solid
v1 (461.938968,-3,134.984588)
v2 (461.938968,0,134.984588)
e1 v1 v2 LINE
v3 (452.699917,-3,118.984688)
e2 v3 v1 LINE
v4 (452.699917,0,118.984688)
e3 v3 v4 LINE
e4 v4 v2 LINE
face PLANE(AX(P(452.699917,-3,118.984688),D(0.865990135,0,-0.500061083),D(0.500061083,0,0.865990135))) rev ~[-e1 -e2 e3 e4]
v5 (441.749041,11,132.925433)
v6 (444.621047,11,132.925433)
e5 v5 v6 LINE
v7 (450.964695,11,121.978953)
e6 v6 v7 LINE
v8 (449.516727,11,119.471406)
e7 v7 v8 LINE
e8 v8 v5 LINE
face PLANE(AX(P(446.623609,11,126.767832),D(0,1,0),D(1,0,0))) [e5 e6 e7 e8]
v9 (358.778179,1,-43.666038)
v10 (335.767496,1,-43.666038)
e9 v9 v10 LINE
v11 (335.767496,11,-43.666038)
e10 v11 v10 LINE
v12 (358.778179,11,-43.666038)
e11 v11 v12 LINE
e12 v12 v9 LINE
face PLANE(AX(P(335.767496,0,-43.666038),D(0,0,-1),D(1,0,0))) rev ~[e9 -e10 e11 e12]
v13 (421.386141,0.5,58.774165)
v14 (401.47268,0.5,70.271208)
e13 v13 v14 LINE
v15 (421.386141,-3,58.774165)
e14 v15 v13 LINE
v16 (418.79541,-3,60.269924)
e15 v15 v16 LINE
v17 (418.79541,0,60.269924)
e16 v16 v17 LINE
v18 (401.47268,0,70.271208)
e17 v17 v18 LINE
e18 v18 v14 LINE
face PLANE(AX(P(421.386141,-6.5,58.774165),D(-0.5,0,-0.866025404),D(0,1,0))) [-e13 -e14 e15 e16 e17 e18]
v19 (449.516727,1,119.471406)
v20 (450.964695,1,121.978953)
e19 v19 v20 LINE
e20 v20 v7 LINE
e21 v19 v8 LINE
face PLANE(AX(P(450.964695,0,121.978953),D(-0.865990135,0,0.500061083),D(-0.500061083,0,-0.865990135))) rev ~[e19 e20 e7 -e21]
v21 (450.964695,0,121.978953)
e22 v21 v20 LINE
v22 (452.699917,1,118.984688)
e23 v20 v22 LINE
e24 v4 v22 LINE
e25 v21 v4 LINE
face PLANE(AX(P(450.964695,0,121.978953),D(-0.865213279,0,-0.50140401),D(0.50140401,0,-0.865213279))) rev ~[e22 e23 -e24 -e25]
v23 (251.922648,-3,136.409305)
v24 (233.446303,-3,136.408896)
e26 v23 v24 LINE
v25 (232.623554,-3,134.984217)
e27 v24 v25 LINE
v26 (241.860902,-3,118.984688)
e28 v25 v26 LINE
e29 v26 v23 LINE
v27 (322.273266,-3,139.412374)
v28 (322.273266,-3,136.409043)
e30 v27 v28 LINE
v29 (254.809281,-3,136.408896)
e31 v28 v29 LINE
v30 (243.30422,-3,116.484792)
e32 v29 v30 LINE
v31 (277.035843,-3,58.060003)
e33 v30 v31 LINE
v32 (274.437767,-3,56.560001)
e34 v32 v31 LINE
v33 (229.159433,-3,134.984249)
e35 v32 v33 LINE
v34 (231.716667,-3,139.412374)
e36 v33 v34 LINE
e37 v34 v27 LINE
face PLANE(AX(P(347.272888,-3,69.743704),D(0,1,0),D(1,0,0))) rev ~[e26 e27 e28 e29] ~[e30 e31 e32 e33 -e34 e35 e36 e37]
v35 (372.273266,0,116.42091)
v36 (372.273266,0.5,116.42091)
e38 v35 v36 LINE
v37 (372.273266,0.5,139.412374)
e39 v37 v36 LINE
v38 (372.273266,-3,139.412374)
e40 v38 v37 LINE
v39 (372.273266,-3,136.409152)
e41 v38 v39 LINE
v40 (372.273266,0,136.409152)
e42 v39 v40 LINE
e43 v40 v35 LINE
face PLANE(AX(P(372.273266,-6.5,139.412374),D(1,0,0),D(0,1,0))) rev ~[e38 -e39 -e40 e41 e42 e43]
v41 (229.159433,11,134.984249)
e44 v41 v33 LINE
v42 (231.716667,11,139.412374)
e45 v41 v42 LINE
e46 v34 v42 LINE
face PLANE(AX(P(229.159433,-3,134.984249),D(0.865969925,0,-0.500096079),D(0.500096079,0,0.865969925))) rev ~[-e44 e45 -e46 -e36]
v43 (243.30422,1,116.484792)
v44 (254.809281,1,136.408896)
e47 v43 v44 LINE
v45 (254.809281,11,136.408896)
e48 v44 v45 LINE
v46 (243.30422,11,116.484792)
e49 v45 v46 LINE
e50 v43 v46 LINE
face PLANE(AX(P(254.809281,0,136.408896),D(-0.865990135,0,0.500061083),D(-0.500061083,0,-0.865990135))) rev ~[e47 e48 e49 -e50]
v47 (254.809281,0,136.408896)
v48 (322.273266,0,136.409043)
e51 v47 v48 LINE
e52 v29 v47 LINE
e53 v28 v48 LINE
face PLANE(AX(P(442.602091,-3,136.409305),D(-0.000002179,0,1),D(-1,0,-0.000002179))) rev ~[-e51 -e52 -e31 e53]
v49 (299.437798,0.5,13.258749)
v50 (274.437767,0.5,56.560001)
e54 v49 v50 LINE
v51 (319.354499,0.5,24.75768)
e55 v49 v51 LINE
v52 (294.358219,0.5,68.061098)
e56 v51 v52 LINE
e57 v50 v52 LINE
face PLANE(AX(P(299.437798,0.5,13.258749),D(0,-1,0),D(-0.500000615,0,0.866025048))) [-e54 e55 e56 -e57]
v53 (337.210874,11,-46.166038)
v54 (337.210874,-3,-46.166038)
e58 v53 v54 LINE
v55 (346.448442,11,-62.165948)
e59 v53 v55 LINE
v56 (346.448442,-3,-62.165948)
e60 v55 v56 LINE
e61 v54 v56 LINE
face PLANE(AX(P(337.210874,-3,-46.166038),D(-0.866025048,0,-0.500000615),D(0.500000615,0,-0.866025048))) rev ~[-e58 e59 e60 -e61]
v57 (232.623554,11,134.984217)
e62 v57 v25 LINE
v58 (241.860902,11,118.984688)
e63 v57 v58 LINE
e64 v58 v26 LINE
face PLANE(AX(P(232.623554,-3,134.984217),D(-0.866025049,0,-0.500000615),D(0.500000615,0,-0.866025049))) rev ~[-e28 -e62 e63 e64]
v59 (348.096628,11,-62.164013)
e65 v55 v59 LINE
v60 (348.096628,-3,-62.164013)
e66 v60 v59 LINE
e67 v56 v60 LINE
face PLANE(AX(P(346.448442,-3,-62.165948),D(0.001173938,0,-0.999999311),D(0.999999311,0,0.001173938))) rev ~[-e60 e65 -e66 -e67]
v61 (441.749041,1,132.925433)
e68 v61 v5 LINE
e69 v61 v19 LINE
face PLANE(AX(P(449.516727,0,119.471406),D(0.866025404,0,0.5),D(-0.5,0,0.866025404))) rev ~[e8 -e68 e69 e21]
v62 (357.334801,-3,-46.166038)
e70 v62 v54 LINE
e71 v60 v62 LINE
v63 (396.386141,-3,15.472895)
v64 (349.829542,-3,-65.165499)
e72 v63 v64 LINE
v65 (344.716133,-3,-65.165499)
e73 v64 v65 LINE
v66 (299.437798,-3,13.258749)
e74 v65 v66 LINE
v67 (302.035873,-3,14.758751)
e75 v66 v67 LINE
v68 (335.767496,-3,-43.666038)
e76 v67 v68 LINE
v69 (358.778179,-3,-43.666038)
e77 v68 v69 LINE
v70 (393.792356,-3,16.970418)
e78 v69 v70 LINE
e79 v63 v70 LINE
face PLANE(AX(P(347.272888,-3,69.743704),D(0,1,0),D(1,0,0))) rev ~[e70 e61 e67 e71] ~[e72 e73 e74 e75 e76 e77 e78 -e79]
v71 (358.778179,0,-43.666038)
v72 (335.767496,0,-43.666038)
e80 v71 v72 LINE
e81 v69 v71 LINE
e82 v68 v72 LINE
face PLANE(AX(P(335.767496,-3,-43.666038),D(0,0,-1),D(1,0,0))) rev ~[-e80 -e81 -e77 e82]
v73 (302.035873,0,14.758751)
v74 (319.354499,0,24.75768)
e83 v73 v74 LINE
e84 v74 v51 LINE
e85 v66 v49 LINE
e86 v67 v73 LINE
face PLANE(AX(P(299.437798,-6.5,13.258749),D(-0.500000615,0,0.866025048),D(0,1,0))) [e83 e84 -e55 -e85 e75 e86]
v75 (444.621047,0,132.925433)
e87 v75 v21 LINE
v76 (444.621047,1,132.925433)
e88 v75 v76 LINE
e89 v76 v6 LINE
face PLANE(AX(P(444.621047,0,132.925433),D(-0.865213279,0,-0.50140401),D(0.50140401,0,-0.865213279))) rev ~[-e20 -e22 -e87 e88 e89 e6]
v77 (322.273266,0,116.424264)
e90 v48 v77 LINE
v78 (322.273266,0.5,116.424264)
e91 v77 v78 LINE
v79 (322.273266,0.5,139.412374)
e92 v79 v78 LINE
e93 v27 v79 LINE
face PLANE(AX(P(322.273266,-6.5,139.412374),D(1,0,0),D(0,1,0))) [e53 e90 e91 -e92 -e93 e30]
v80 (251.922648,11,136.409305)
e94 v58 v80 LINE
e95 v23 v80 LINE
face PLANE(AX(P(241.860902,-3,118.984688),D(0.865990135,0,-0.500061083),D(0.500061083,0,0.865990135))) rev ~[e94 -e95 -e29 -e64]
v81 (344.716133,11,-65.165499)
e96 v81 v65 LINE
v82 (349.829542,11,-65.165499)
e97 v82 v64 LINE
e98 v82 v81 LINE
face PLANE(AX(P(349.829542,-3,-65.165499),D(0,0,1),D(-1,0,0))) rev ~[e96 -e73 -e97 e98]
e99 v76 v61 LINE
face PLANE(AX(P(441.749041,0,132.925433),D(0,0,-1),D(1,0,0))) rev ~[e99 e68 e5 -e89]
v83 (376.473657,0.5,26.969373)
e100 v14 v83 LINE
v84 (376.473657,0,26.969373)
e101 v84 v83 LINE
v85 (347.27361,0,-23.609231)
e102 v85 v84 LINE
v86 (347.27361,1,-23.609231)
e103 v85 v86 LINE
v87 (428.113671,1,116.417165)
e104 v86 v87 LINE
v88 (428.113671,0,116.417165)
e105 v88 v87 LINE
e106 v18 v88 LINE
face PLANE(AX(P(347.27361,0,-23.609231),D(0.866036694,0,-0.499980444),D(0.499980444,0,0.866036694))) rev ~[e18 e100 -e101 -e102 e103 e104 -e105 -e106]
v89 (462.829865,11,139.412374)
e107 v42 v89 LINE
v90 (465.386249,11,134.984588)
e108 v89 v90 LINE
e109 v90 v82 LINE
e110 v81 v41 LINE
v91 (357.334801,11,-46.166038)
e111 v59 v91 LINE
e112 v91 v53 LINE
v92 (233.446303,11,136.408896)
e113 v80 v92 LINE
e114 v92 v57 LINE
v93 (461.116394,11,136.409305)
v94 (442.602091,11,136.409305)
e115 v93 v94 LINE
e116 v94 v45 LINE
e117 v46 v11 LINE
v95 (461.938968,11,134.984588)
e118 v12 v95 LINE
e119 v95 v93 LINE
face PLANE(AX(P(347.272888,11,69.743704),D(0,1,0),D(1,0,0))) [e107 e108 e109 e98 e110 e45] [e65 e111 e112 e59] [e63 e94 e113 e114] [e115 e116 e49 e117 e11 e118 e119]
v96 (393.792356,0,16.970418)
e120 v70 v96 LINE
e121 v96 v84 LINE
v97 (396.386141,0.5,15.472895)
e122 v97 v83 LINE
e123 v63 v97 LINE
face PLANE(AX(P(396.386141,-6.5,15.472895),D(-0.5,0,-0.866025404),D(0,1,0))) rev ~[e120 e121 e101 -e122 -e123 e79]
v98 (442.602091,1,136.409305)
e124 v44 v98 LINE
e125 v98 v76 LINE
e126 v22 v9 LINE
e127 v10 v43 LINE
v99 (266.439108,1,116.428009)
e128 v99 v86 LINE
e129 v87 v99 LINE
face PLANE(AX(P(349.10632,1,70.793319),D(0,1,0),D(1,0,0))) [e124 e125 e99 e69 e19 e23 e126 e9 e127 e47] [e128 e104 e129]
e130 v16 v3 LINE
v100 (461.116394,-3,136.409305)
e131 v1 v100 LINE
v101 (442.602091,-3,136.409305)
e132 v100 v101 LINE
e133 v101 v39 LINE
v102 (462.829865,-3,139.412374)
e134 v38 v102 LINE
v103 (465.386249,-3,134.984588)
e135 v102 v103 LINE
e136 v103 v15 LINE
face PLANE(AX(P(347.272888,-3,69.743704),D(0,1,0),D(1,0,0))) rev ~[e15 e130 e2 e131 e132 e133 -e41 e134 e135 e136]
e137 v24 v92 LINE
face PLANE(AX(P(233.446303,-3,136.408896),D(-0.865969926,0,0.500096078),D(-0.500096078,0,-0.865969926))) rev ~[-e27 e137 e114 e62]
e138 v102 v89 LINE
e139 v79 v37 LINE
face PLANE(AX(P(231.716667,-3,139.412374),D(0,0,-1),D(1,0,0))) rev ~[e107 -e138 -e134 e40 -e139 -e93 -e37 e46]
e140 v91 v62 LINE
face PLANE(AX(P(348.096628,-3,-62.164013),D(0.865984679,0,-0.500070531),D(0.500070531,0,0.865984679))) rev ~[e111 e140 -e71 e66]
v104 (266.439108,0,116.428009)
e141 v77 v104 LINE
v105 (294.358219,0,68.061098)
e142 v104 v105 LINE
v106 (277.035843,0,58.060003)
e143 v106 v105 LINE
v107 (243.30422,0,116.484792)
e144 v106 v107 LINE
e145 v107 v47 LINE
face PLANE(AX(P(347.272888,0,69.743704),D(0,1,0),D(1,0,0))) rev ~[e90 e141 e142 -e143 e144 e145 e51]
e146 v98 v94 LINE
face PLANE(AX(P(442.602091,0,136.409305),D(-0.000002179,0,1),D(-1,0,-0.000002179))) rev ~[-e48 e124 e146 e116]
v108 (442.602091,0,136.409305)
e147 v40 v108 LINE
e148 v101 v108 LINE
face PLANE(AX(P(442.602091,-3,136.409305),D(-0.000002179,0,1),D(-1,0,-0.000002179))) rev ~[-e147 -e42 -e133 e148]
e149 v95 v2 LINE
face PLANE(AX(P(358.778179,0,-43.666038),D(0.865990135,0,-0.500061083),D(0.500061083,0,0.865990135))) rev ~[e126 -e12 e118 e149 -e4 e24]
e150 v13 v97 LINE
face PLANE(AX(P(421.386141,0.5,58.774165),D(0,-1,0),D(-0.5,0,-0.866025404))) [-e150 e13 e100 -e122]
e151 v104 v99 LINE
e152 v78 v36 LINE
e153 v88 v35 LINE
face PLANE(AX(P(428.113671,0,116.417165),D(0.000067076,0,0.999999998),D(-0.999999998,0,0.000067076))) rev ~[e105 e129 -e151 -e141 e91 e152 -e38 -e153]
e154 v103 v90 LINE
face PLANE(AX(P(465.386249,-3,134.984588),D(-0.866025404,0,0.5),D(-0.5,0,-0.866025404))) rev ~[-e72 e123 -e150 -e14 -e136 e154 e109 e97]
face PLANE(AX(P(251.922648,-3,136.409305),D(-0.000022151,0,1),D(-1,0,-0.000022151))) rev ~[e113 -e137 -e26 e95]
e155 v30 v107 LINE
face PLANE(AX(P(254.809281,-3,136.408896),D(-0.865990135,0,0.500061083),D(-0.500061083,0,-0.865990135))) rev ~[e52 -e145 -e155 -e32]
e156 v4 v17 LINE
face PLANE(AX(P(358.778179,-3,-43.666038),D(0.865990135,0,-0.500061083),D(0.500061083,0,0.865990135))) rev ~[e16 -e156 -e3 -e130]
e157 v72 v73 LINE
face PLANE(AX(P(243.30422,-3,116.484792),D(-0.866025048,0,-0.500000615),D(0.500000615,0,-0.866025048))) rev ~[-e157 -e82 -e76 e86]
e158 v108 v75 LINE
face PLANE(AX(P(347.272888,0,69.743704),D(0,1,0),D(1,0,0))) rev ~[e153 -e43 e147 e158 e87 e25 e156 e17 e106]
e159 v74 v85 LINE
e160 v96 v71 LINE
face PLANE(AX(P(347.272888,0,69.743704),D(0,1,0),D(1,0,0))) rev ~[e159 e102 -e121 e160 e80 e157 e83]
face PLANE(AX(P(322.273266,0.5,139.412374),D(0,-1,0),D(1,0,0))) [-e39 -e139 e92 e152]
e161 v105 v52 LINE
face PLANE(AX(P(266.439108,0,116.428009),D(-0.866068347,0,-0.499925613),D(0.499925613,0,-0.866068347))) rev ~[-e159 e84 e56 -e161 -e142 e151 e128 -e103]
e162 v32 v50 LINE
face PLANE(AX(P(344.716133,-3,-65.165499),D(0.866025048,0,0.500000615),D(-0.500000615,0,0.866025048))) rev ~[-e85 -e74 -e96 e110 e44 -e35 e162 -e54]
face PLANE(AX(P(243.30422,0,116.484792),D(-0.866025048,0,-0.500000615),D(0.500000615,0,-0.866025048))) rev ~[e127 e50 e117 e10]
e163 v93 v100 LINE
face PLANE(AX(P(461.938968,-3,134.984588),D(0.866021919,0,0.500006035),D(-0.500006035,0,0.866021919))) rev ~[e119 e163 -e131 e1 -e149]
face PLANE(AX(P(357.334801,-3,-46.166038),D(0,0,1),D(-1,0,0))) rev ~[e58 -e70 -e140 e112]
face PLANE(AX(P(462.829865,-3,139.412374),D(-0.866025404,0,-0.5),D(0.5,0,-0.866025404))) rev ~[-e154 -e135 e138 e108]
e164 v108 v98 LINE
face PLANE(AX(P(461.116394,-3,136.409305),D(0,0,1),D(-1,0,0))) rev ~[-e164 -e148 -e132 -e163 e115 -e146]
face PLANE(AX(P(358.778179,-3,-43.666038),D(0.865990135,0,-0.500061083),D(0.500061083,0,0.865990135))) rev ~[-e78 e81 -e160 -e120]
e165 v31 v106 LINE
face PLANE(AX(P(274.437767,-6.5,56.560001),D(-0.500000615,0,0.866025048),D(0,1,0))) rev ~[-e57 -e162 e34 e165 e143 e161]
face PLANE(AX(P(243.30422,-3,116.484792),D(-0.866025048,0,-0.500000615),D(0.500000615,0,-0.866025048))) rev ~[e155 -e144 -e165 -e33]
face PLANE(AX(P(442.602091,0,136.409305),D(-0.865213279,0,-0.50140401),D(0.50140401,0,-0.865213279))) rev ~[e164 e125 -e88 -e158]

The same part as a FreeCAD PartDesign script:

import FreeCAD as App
import Part
import Sketcher

doc = App.newDocument("Part")
body = doc.addObject("PartDesign::Body", "Body")

# Sketch on XZ plane
sketch1 = doc.addObject("Sketcher::SketchObject", "Sketch")
body.addObject(sketch1)
sketch1.AttachmentSupport = (doc.XZ_Plane, [""])
sketch1.MapMode = "FlatFace"
sketch1.addGeometry(Part.LineSegment(App.Vector(243.30422, 116.484792, 0), App.Vector(254.809281, 136.408896, 0)), False)
sketch1.addGeometry(Part.LineSegment(App.Vector(254.809281, 136.408896, 0), App.Vector(442.602091, 136.409305, 0)), False)
sketch1.addGeometry(Part.LineSegment(App.Vector(442.602091, 136.409305, 0), App.Vector(444.621047, 132.925433, 0)), False)
sketch1.addGeometry(Part.LineSegment(App.Vector(444.621047, 132.925433, 0), App.Vector(441.749041, 132.925433, 0)), False)
sketch1.addGeometry(Part.LineSegment(App.Vector(441.749041, 132.925433, 0), App.Vector(449.516727, 119.471406, 0)), False)
sketch1.addGeometry(Part.LineSegment(App.Vector(449.516727, 119.471406, 0), App.Vector(450.964695, 121.978953, 0)), False)
sketch1.addGeometry(Part.LineSegment(App.Vector(450.964695, 121.978953, 0), App.Vector(452.699917, 118.984688, 0)), False)
sketch1.addGeometry(Part.LineSegment(App.Vector(452.699917, 118.984688, 0), App.Vector(358.778179, -43.666038, 0)), False)
sketch1.addGeometry(Part.LineSegment(App.Vector(358.778179, -43.666038, 0), App.Vector(335.767496, -43.666038, 0)), False)
sketch1.addGeometry(Part.LineSegment(App.Vector(335.767496, -43.666038, 0), App.Vector(243.30422, 116.484792, 0)), False)
sketch1.addGeometry(Part.LineSegment(App.Vector(347.27361, -23.609231, 0), App.Vector(428.113671, 116.417165, 0)), False)
sketch1.addGeometry(Part.LineSegment(App.Vector(428.113671, 116.417165, 0), App.Vector(266.439108, 116.428009, 0)), False)
sketch1.addGeometry(Part.LineSegment(App.Vector(266.439108, 116.428009, 0), App.Vector(347.27361, -23.609231, 0)), False)
sketch1.addConstraint(Sketcher.Constraint("Coincident", 0, 2, 1, 1))
sketch1.addConstraint(Sketcher.Constraint("Coincident", 1, 2, 2, 1))
sketch1.addConstraint(Sketcher.Constraint("Coincident", 2, 2, 3, 1))
sketch1.addConstraint(Sketcher.Constraint("Coincident", 3, 2, 4, 1))
sketch1.addConstraint(Sketcher.Constraint("Coincident", 4, 2, 5, 1))
sketch1.addConstraint(Sketcher.Constraint("Coincident", 5, 2, 6, 1))
sketch1.addConstraint(Sketcher.Constraint("Coincident", 6, 2, 7, 1))
sketch1.addConstraint(Sketcher.Constraint("Coincident", 7, 2, 8, 1))
sketch1.addConstraint(Sketcher.Constraint("Coincident", 8, 2, 9, 1))
sketch1.addConstraint(Sketcher.Constraint("Coincident", 9, 2, 0, 1))
sketch1.addConstraint(Sketcher.Constraint("Coincident", 10, 2, 11, 1))
sketch1.addConstraint(Sketcher.Constraint("Coincident", 11, 2, 12, 1))
sketch1.addConstraint(Sketcher.Constraint("Coincident", 12, 2, 10, 1))
sketch1.addConstraint(Sketcher.Constraint("Horizontal", 3))
sketch1.addConstraint(Sketcher.Constraint("Horizontal", 8))
sketch1.addConstraint(Sketcher.Constraint("DistanceY", 4, 2, 1, 2, 16.937899))
sketch1.addConstraint(Sketcher.Constraint("DistanceX", 8, 2, 5, 2, 115.197199))
sketch1.addConstraint(Sketcher.Constraint("DistanceX", 11, 2, 12, 2, 80.834501))
sketch1.addConstraint(Sketcher.Constraint("Distance", 0, 23.007311))
sketch1.addConstraint(Sketcher.Constraint("Distance", 1, 187.79281))
sketch1.addConstraint(Sketcher.Constraint("Distance", 4, 15.535372))
sketch1.addConstraint(Sketcher.Constraint("Distance", 7, 187.82053))
sketch1.addConstraint(Sketcher.Constraint("Distance", 12, 161.693059))
sketch1.addConstraint(Sketcher.Constraint("DistanceX", 3, 2, 3, 1, 2.872006))
sketch1.addConstraint(Sketcher.Constraint("DistanceX", 8, 2, 8, 1, 23.010683))
sketch1.addConstraint(Sketcher.Constraint("DistanceX", -1, 1, 0, 2, 254.809281))
sketch1.addConstraint(Sketcher.Constraint("DistanceX", -1, 1, 3, 2, 441.749041))
sketch1.addConstraint(Sketcher.Constraint("DistanceY", -1, 1, 6, 2, 118.984688))
sketch1.addConstraint(Sketcher.Constraint("DistanceX", -1, 1, 7, 2, 358.778179))
sketch1.addConstraint(Sketcher.Constraint("DistanceY", 7, 2, -1, 1, 43.666038))
sketch1.addConstraint(Sketcher.Constraint("DistanceX", -1, 1, 9, 2, 243.30422))
sketch1.addConstraint(Sketcher.Constraint("DistanceY", -1, 1, 9, 2, 116.484792))
sketch1.addConstraint(Sketcher.Constraint("DistanceX", -1, 1, 10, 2, 428.113671))
sketch1.addConstraint(Sketcher.Constraint("DistanceX", -1, 1, 11, 2, 266.439108))
sketch1.addConstraint(Sketcher.Constraint("DistanceY", -1, 1, 11, 2, 116.428009))
sketch1.addConstraint(Sketcher.Constraint("DistanceY", 0, 2, 1, 2, 0.000409))
sketch1.addConstraint(Sketcher.Constraint("DistanceX", 2, 2, 4, 2, 4.89568))
sketch1.addConstraint(Sketcher.Constraint("DistanceY", 5, 2, 2, 2, 10.94648))
sketch1.addConstraint(Sketcher.Constraint("DistanceY", 10, 2, 3, 2, 16.508269))
pad1 = doc.addObject("PartDesign::Pad", "Pad")
body.addObject(pad1)
pad1.Profile = sketch1
pad1.Length = 1
pad1.Reversed = True

# Sketch on XZ plane
sketch2 = doc.addObject("Sketcher::SketchObject", "Sketch001")
body.addObject(sketch2)
sketch2.AttachmentSupport = (doc.XZ_Plane, [""])
sketch2.MapMode = "FlatFace"
sketch2.addGeometry(Part.LineSegment(App.Vector(229.159433, 134.984249, 0), App.Vector(231.716667, 139.412374, 0)), False)
sketch2.addGeometry(Part.LineSegment(App.Vector(231.716667, 139.412374, 0), App.Vector(462.829865, 139.412374, 0)), False)
sketch2.addGeometry(Part.LineSegment(App.Vector(462.829865, 139.412374, 0), App.Vector(465.386249, 134.984588, 0)), False)
sketch2.addGeometry(Part.LineSegment(App.Vector(465.386249, 134.984588, 0), App.Vector(349.829542, -65.165499, 0)), False)
sketch2.addGeometry(Part.LineSegment(App.Vector(349.829542, -65.165499, 0), App.Vector(344.716133, -65.165499, 0)), False)
sketch2.addGeometry(Part.LineSegment(App.Vector(344.716133, -65.165499, 0), App.Vector(229.159433, 134.984249, 0)), False)
sketch2.addGeometry(Part.LineSegment(App.Vector(241.860902, 118.984688, 0), App.Vector(251.922648, 136.409305, 0)), False)
sketch2.addGeometry(Part.LineSegment(App.Vector(251.922648, 136.409305, 0), App.Vector(233.446303, 136.408896, 0)), False)
sketch2.addGeometry(Part.LineSegment(App.Vector(233.446303, 136.408896, 0), App.Vector(232.623554, 134.984217, 0)), False)
sketch2.addGeometry(Part.LineSegment(App.Vector(232.623554, 134.984217, 0), App.Vector(241.860902, 118.984688, 0)), False)
sketch2.addGeometry(Part.LineSegment(App.Vector(461.116394, 136.409305, 0), App.Vector(442.602091, 136.409305, 0)), False)
sketch2.addGeometry(Part.LineSegment(App.Vector(442.602091, 136.409305, 0), App.Vector(254.809281, 136.408896, 0)), False)
sketch2.addGeometry(Part.LineSegment(App.Vector(254.809281, 136.408896, 0), App.Vector(243.30422, 116.484792, 0)), False)
sketch2.addGeometry(Part.LineSegment(App.Vector(243.30422, 116.484792, 0), App.Vector(335.767496, -43.666038, 0)), False)
sketch2.addGeometry(Part.LineSegment(App.Vector(335.767496, -43.666038, 0), App.Vector(358.778179, -43.666038, 0)), False)
sketch2.addGeometry(Part.LineSegment(App.Vector(358.778179, -43.666038, 0), App.Vector(461.938968, 134.984588, 0)), False)
sketch2.addGeometry(Part.LineSegment(App.Vector(461.938968, 134.984588, 0), App.Vector(461.116394, 136.409305, 0)), False)
sketch2.addGeometry(Part.LineSegment(App.Vector(346.448442, -62.165948, 0), App.Vector(348.096628, -62.164013, 0)), False)
sketch2.addGeometry(Part.LineSegment(App.Vector(348.096628, -62.164013, 0), App.Vector(357.334801, -46.166038, 0)), False)
sketch2.addGeometry(Part.LineSegment(App.Vector(357.334801, -46.166038, 0), App.Vector(337.210874, -46.166038, 0)), False)
sketch2.addGeometry(Part.LineSegment(App.Vector(337.210874, -46.166038, 0), App.Vector(346.448442, -62.165948, 0)), False)
sketch2.addGeometry(Part.LineSegment(App.Vector(441.749041, 132.925433, 0), App.Vector(444.621047, 132.925433, 0)), False)
sketch2.addGeometry(Part.LineSegment(App.Vector(444.621047, 132.925433, 0), App.Vector(450.964695, 121.978953, 0)), False)
sketch2.addGeometry(Part.LineSegment(App.Vector(450.964695, 121.978953, 0), App.Vector(449.516727, 119.471406, 0)), False)
sketch2.addGeometry(Part.LineSegment(App.Vector(449.516727, 119.471406, 0), App.Vector(441.749041, 132.925433, 0)), False)
sketch2.addConstraint(Sketcher.Constraint("Coincident", 0, 2, 1, 1))
sketch2.addConstraint(Sketcher.Constraint("Coincident", 1, 2, 2, 1))
sketch2.addConstraint(Sketcher.Constraint("Coincident", 2, 2, 3, 1))
sketch2.addConstraint(Sketcher.Constraint("Coincident", 3, 2, 4, 1))
sketch2.addConstraint(Sketcher.Constraint("Coincident", 4, 2, 5, 1))
sketch2.addConstraint(Sketcher.Constraint("Coincident", 5, 2, 0, 1))
sketch2.addConstraint(Sketcher.Constraint("Coincident", 6, 2, 7, 1))
sketch2.addConstraint(Sketcher.Constraint("Coincident", 7, 2, 8, 1))
sketch2.addConstraint(Sketcher.Constraint("Coincident", 8, 2, 9, 1))
sketch2.addConstraint(Sketcher.Constraint("Coincident", 9, 2, 6, 1))
sketch2.addConstraint(Sketcher.Constraint("Coincident", 10, 2, 11, 1))
sketch2.addConstraint(Sketcher.Constraint("Coincident", 11, 2, 12, 1))
sketch2.addConstraint(Sketcher.Constraint("Coincident", 12, 2, 13, 1))
sketch2.addConstraint(Sketcher.Constraint("Coincident", 13, 2, 14, 1))
sketch2.addConstraint(Sketcher.Constraint("Coincident", 14, 2, 15, 1))
sketch2.addConstraint(Sketcher.Constraint("Coincident", 15, 2, 16, 1))
sketch2.addConstraint(Sketcher.Constraint("Coincident", 16, 2, 10, 1))
sketch2.addConstraint(Sketcher.Constraint("Coincident", 17, 2, 18, 1))
sketch2.addConstraint(Sketcher.Constraint("Coincident", 18, 2, 19, 1))
sketch2.addConstraint(Sketcher.Constraint("Coincident", 19, 2, 20, 1))
sketch2.addConstraint(Sketcher.Constraint("Coincident", 20, 2, 17, 1))
sketch2.addConstraint(Sketcher.Constraint("Coincident", 21, 2, 22, 1))
sketch2.addConstraint(Sketcher.Constraint("Coincident", 22, 2, 23, 1))
sketch2.addConstraint(Sketcher.Constraint("Coincident", 23, 2, 24, 1))
sketch2.addConstraint(Sketcher.Constraint("Coincident", 24, 2, 21, 1))
sketch2.addConstraint(Sketcher.Constraint("Horizontal", 1))
sketch2.addConstraint(Sketcher.Constraint("Horizontal", 4))
sketch2.addConstraint(Sketcher.Constraint("Horizontal", 10))
sketch2.addConstraint(Sketcher.Constraint("Horizontal", 14))
sketch2.addConstraint(Sketcher.Constraint("Horizontal", 19))
sketch2.addConstraint(Sketcher.Constraint("Horizontal", 21))
sketch2.addConstraint(Sketcher.Constraint("DistanceY", 18, 2, 14, 2, 2.5))
sketch2.addConstraint(Sketcher.Constraint("DistanceX", 1, 1, 1, 2, 231.113199))
sketch2.addConstraint(Sketcher.Constraint("DistanceX", 4, 2, 4, 1, 5.113409))
sketch2.addConstraint(Sketcher.Constraint("DistanceY", 3, 2, -1, 1, 65.165499))
sketch2.addConstraint(Sketcher.Constraint("DistanceX", -1, 1, 9, 2, 241.860902))
sketch2.addConstraint(Sketcher.Constraint("DistanceX", -1, 1, 18, 2, 357.334801))
sketch2.addConstraint(Sketcher.Constraint("DistanceX", 5, 2, 4, 2, 115.556701))
sketch2.addConstraint(Sketcher.Constraint("DistanceX", 6, 2, 2, 2, 213.463601))
sketch2.addConstraint(Sketcher.Constraint("DistanceX", 7, 2, 9, 2, 8.414598))
sketch2.addConstraint(Sketcher.Constraint("DistanceX", 20, 2, 3, 2, 3.3811))
sketch2.addConstraint(Sketcher.Constraint("DistanceX", 22, 2, 16, 2, 10.151698))
sketch2.addConstraint(Sketcher.Constraint("DistanceY", 23, 2, 10, 2, 16.937899))
sketch2.addConstraint(Sketcher.Constraint("Distance", 11, 187.79281))
sketch2.addConstraint(Sketcher.Constraint("Distance", 12, 23.007311))
sketch2.addConstraint(Sketcher.Constraint("Distance", 16, 1.645129))
sketch2.addConstraint(Sketcher.Constraint("Distance", 18, 18.473739))
sketch2.addConstraint(Sketcher.Constraint("Distance", 22, 12.651771))
sketch2.addConstraint(Sketcher.Constraint("Distance", 24, 15.535372))
sketch2.addConstraint(Sketcher.Constraint("DistanceX", 10, 2, 10, 1, 18.514303))
sketch2.addConstraint(Sketcher.Constraint("DistanceX", 14, 1, 14, 2, 23.010683))
sketch2.addConstraint(Sketcher.Constraint("DistanceX", 19, 2, 19, 1, 20.123927))
sketch2.addConstraint(Sketcher.Constraint("DistanceX", 21, 1, 21, 2, 2.872006))
sketch2.addConstraint(Sketcher.Constraint("DistanceX", -1, 1, 2, 2, 465.386249))
sketch2.addConstraint(Sketcher.Constraint("DistanceY", -1, 1, 2, 2, 134.984588))
sketch2.addConstraint(Sketcher.Constraint("DistanceY", -1, 1, 5, 2, 134.984249))
sketch2.addConstraint(Sketcher.Constraint("DistanceY", -1, 1, 9, 2, 118.984688))
sketch2.addConstraint(Sketcher.Constraint("DistanceX", -1, 1, 10, 2, 442.602091))
sketch2.addConstraint(Sketcher.Constraint("DistanceX", -1, 1, 12, 2, 243.30422))
sketch2.addConstraint(Sketcher.Constraint("DistanceY", -1, 1, 12, 2, 116.484792))
sketch2.addConstraint(Sketcher.Constraint("DistanceY", 13, 2, -1, 1, 43.666038))
sketch2.addConstraint(Sketcher.Constraint("DistanceX", -1, 1, 14, 2, 358.778179))
sketch2.addConstraint(Sketcher.Constraint("DistanceY", -1, 1, 15, 2, 134.984588))
sketch2.addConstraint(Sketcher.Constraint("DistanceX", -1, 1, 17, 2, 348.096628))
sketch2.addConstraint(Sketcher.Constraint("DistanceX", -1, 1, 20, 2, 346.448442))
sketch2.addConstraint(Sketcher.Constraint("DistanceY", 20, 2, -1, 1, 62.165948))
sketch2.addConstraint(Sketcher.Constraint("DistanceX", -1, 1, 24, 2, 441.749041))
sketch2.addConstraint(Sketcher.Constraint("DistanceX", 0, 2, 6, 2, 20.205981))
sketch2.addConstraint(Sketcher.Constraint("DistanceY", 6, 2, 0, 2, 3.003068))
sketch2.addConstraint(Sketcher.Constraint("DistanceY", 7, 2, 6, 2, 0.000409))
sketch2.addConstraint(Sketcher.Constraint("DistanceX", 8, 2, 7, 2, 0.822749))
sketch2.addConstraint(Sketcher.Constraint("DistanceY", 8, 2, 7, 2, 1.424679))
sketch2.addConstraint(Sketcher.Constraint("DistanceY", 9, 2, 8, 2, 15.999529))
sketch2.addConstraint(Sketcher.Constraint("DistanceY", 10, 2, 1, 2, 3.003068))
sketch2.addConstraint(Sketcher.Constraint("DistanceY", 21, 2, 1, 2, 6.486941))
pad2 = doc.addObject("PartDesign::Pad", "Pad001")
body.addObject(pad2)
pad2.Profile = sketch2
pad2.Length = 11
pad2.Reversed = True

# Sketch on XZ plane
sketch3 = doc.addObject("Sketcher::SketchObject", "Sketch002")
body.addObject(sketch3)
sketch3.AttachmentSupport = (doc.XZ_Plane, [""])
sketch3.MapMode = "FlatFace"
sketch3.addGeometry(Part.LineSegment(App.Vector(229.159433, 134.984249, 0), App.Vector(231.716667, 139.412374, 0)), False)
sketch3.addGeometry(Part.LineSegment(App.Vector(231.716667, 139.412374, 0), App.Vector(462.829865, 139.412374, 0)), False)
sketch3.addGeometry(Part.LineSegment(App.Vector(462.829865, 139.412374, 0), App.Vector(465.386249, 134.984588, 0)), False)
sketch3.addGeometry(Part.LineSegment(App.Vector(465.386249, 134.984588, 0), App.Vector(349.829542, -65.165499, 0)), False)
sketch3.addGeometry(Part.LineSegment(App.Vector(349.829542, -65.165499, 0), App.Vector(344.716133, -65.165499, 0)), False)
sketch3.addGeometry(Part.LineSegment(App.Vector(344.716133, -65.165499, 0), App.Vector(229.159433, 134.984249, 0)), False)
sketch3.addGeometry(Part.LineSegment(App.Vector(241.860902, 118.984688, 0), App.Vector(251.922648, 136.409305, 0)), False)
sketch3.addGeometry(Part.LineSegment(App.Vector(251.922648, 136.409305, 0), App.Vector(233.446303, 136.408896, 0)), False)
sketch3.addGeometry(Part.LineSegment(App.Vector(233.446303, 136.408896, 0), App.Vector(232.623554, 134.984217, 0)), False)
sketch3.addGeometry(Part.LineSegment(App.Vector(232.623554, 134.984217, 0), App.Vector(241.860902, 118.984688, 0)), False)
sketch3.addGeometry(Part.LineSegment(App.Vector(461.116394, 136.409305, 0), App.Vector(442.602091, 136.409305, 0)), False)
sketch3.addGeometry(Part.LineSegment(App.Vector(442.602091, 136.409305, 0), App.Vector(254.809281, 136.408896, 0)), False)
sketch3.addGeometry(Part.LineSegment(App.Vector(254.809281, 136.408896, 0), App.Vector(243.30422, 116.484792, 0)), False)
sketch3.addGeometry(Part.LineSegment(App.Vector(243.30422, 116.484792, 0), App.Vector(335.767496, -43.666038, 0)), False)
sketch3.addGeometry(Part.LineSegment(App.Vector(335.767496, -43.666038, 0), App.Vector(358.778179, -43.666038, 0)), False)
sketch3.addGeometry(Part.LineSegment(App.Vector(358.778179, -43.666038, 0), App.Vector(452.699917, 118.984688, 0)), False)
sketch3.addGeometry(Part.LineSegment(App.Vector(452.699917, 118.984688, 0), App.Vector(461.938968, 134.984588, 0)), False)
sketch3.addGeometry(Part.LineSegment(App.Vector(461.938968, 134.984588, 0), App.Vector(461.116394, 136.409305, 0)), False)
sketch3.addGeometry(Part.LineSegment(App.Vector(346.448442, -62.165948, 0), App.Vector(348.096628, -62.164013, 0)), False)
sketch3.addGeometry(Part.LineSegment(App.Vector(348.096628, -62.164013, 0), App.Vector(357.334801, -46.166038, 0)), False)
sketch3.addGeometry(Part.LineSegment(App.Vector(357.334801, -46.166038, 0), App.Vector(337.210874, -46.166038, 0)), False)
sketch3.addGeometry(Part.LineSegment(App.Vector(337.210874, -46.166038, 0), App.Vector(346.448442, -62.165948, 0)), False)
sketch3.addConstraint(Sketcher.Constraint("Coincident", 0, 2, 1, 1))
sketch3.addConstraint(Sketcher.Constraint("Coincident", 1, 2, 2, 1))
sketch3.addConstraint(Sketcher.Constraint("Coincident", 2, 2, 3, 1))
sketch3.addConstraint(Sketcher.Constraint("Coincident", 3, 2, 4, 1))
sketch3.addConstraint(Sketcher.Constraint("Coincident", 4, 2, 5, 1))
sketch3.addConstraint(Sketcher.Constraint("Coincident", 5, 2, 0, 1))
sketch3.addConstraint(Sketcher.Constraint("Coincident", 6, 2, 7, 1))
sketch3.addConstraint(Sketcher.Constraint("Coincident", 7, 2, 8, 1))
sketch3.addConstraint(Sketcher.Constraint("Coincident", 8, 2, 9, 1))
sketch3.addConstraint(Sketcher.Constraint("Coincident", 9, 2, 6, 1))
sketch3.addConstraint(Sketcher.Constraint("Coincident", 10, 2, 11, 1))
sketch3.addConstraint(Sketcher.Constraint("Coincident", 11, 2, 12, 1))
sketch3.addConstraint(Sketcher.Constraint("Coincident", 12, 2, 13, 1))
sketch3.addConstraint(Sketcher.Constraint("Coincident", 13, 2, 14, 1))
sketch3.addConstraint(Sketcher.Constraint("Coincident", 14, 2, 15, 1))
sketch3.addConstraint(Sketcher.Constraint("Coincident", 15, 2, 16, 1))
sketch3.addConstraint(Sketcher.Constraint("Coincident", 16, 2, 17, 1))
sketch3.addConstraint(Sketcher.Constraint("Coincident", 17, 2, 10, 1))
sketch3.addConstraint(Sketcher.Constraint("Coincident", 18, 2, 19, 1))
sketch3.addConstraint(Sketcher.Constraint("Coincident", 19, 2, 20, 1))
sketch3.addConstraint(Sketcher.Constraint("Coincident", 20, 2, 21, 1))
sketch3.addConstraint(Sketcher.Constraint("Coincident", 21, 2, 18, 1))
sketch3.addConstraint(Sketcher.Constraint("Horizontal", 1))
sketch3.addConstraint(Sketcher.Constraint("Horizontal", 4))
sketch3.addConstraint(Sketcher.Constraint("Horizontal", 10))
sketch3.addConstraint(Sketcher.Constraint("Horizontal", 14))
sketch3.addConstraint(Sketcher.Constraint("Horizontal", 20))
sketch3.addConstraint(Sketcher.Constraint("DistanceY", 19, 2, 14, 2, 2.5))
sketch3.addConstraint(Sketcher.Constraint("DistanceX", 1, 1, 1, 2, 231.113199))
sketch3.addConstraint(Sketcher.Constraint("DistanceX", 4, 2, 4, 1, 5.113409))
sketch3.addConstraint(Sketcher.Constraint("DistanceY", 3, 2, -1, 1, 65.165499))
sketch3.addConstraint(Sketcher.Constraint("DistanceX", -1, 1, 9, 2, 241.860902))
sketch3.addConstraint(Sketcher.Constraint("DistanceX", -1, 1, 19, 2, 357.334801))
sketch3.addConstraint(Sketcher.Constraint("DistanceX", 5, 2, 4, 2, 115.556701))
sketch3.addConstraint(Sketcher.Constraint("DistanceX", 6, 2, 2, 2, 213.463601))
sketch3.addConstraint(Sketcher.Constraint("DistanceX", 7, 2, 9, 2, 8.414598))
sketch3.addConstraint(Sketcher.Constraint("DistanceY", 15, 2, 2, 2, 15.9999))
sketch3.addConstraint(Sketcher.Constraint("DistanceY", 15, 2, 16, 2, 15.9999))
sketch3.addConstraint(Sketcher.Constraint("DistanceX", 21, 2, 3, 2, 3.3811))
sketch3.addConstraint(Sketcher.Constraint("Distance", 11, 187.79281))
sketch3.addConstraint(Sketcher.Constraint("Distance", 12, 23.007311))
sketch3.addConstraint(Sketcher.Constraint("Distance", 15, 187.82053))
sketch3.addConstraint(Sketcher.Constraint("Distance", 17, 1.645129))
sketch3.addConstraint(Sketcher.Constraint("Distance", 19, 18.473739))
sketch3.addConstraint(Sketcher.Constraint("DistanceX", 10, 2, 10, 1, 18.514303))
sketch3.addConstraint(Sketcher.Constraint("DistanceX", 14, 1, 14, 2, 23.010683))
sketch3.addConstraint(Sketcher.Constraint("DistanceX", 20, 2, 20, 1, 20.123927))
sketch3.addConstraint(Sketcher.Constraint("DistanceX", -1, 1, 2, 2, 465.386249))
sketch3.addConstraint(Sketcher.Constraint("DistanceY", -1, 1, 2, 2, 134.984588))
sketch3.addConstraint(Sketcher.Constraint("DistanceY", -1, 1, 5, 2, 134.984249))
sketch3.addConstraint(Sketcher.Constraint("DistanceY", -1, 1, 9, 2, 118.984688))
sketch3.addConstraint(Sketcher.Constraint("DistanceX", -1, 1, 10, 2, 442.602091))
sketch3.addConstraint(Sketcher.Constraint("DistanceX", -1, 1, 12, 2, 243.30422))
sketch3.addConstraint(Sketcher.Constraint("DistanceY", -1, 1, 12, 2, 116.484792))
sketch3.addConstraint(Sketcher.Constraint("DistanceY", 13, 2, -1, 1, 43.666038))
sketch3.addConstraint(Sketcher.Constraint("DistanceX", -1, 1, 14, 2, 358.778179))
sketch3.addConstraint(Sketcher.Constraint("DistanceX", -1, 1, 18, 2, 348.096628))
sketch3.addConstraint(Sketcher.Constraint("DistanceX", -1, 1, 21, 2, 346.448442))
sketch3.addConstraint(Sketcher.Constraint("DistanceY", 21, 2, -1, 1, 62.165948))
sketch3.addConstraint(Sketcher.Constraint("DistanceX", 0, 2, 6, 2, 20.205981))
sketch3.addConstraint(Sketcher.Constraint("DistanceY", 6, 2, 0, 2, 3.003068))
sketch3.addConstraint(Sketcher.Constraint("DistanceY", 7, 2, 6, 2, 0.000409))
sketch3.addConstraint(Sketcher.Constraint("DistanceX", 8, 2, 7, 2, 0.822749))
sketch3.addConstraint(Sketcher.Constraint("DistanceY", 8, 2, 7, 2, 1.424679))
sketch3.addConstraint(Sketcher.Constraint("DistanceY", 9, 2, 8, 2, 15.999529))
sketch3.addConstraint(Sketcher.Constraint("DistanceY", 10, 2, 1, 2, 3.003068))
pad3 = doc.addObject("PartDesign::Pad", "Pad002")
body.addObject(pad3)
pad3.Profile = sketch3
pad3.Type = "TwoLengths"
pad3.Length = 5
pad3.Length2 = 3
pad3.Reversed = True

# Sketch on an angled plane
sketch4 = doc.addObject("Sketcher::SketchObject", "Sketch003")
body.addObject(sketch4)
sketch4.Placement = App.Placement(App.Vector(290.589645, 0, -167.77201), App.Rotation(App.Vector(-0.5, 0, -0.866025404), App.Vector(0, 1, 0), App.Vector(0.866025404, 0, -0.5), "ZXY"))
sketch4.addGeometry(Part.LineSegment(App.Vector(-261.592991, 0.5, 0), App.Vector(-261.592991, -6.5, 0)), False)
sketch4.addGeometry(Part.LineSegment(App.Vector(-261.592991, -6.5, 0), App.Vector(-211.592991, -6.5, 0)), False)
sketch4.addGeometry(Part.LineSegment(App.Vector(-211.592991, -6.5, 0), App.Vector(-211.592991, 0.5, 0)), False)
sketch4.addGeometry(Part.LineSegment(App.Vector(-211.592991, 0.5, 0), App.Vector(-261.592991, 0.5, 0)), False)
sketch4.addConstraint(Sketcher.Constraint("Coincident", 0, 2, 1, 1))
sketch4.addConstraint(Sketcher.Constraint("Coincident", 1, 2, 2, 1))
sketch4.addConstraint(Sketcher.Constraint("Coincident", 2, 2, 3, 1))
sketch4.addConstraint(Sketcher.Constraint("Coincident", 3, 2, 0, 1))
sketch4.addConstraint(Sketcher.Constraint("Vertical", 0))
sketch4.addConstraint(Sketcher.Constraint("Horizontal", 1))
sketch4.addConstraint(Sketcher.Constraint("Vertical", 2))
sketch4.addConstraint(Sketcher.Constraint("Horizontal", 3))
sketch4.addConstraint(Sketcher.Constraint("DistanceX", 1, 1, 1, 2, 50.0))
sketch4.addConstraint(Sketcher.Constraint("DistanceY", 0, 2, 0, 1, 7.0))
sketch4.addConstraint(Sketcher.Constraint("DistanceY", 0, 2, -1, 1, 6.5))
sketch4.addConstraint(Sketcher.Constraint("DistanceX", 0, 2, -1, 1, 261.592991))
pocket1 = doc.addObject("PartDesign::Pocket", "Pocket")
body.addObject(pocket1)
pocket1.Profile = sketch4
pocket1.Length = 25

# Sketch on XY plane
sketch5 = doc.addObject("Sketcher::SketchObject", "Sketch004")
body.addObject(sketch5)
sketch5.AttachmentSupport = (doc.XY_Plane, [""])
sketch5.MapMode = "FlatFace"
sketch5.AttachmentOffset = App.Placement(App.Vector(0, 0, 139.412374), App.Rotation())
sketch5.addGeometry(Part.LineSegment(App.Vector(322.273266, 0.5, 0), App.Vector(322.273266, -6.5, 0)), False)
sketch5.addGeometry(Part.LineSegment(App.Vector(322.273266, -6.5, 0), App.Vector(372.273266, -6.5, 0)), False)
sketch5.addGeometry(Part.LineSegment(App.Vector(372.273266, -6.5, 0), App.Vector(372.273266, 0.5, 0)), False)
sketch5.addGeometry(Part.LineSegment(App.Vector(372.273266, 0.5, 0), App.Vector(322.273266, 0.5, 0)), False)
sketch5.addConstraint(Sketcher.Constraint("Coincident", 0, 2, 1, 1))
sketch5.addConstraint(Sketcher.Constraint("Coincident", 1, 2, 2, 1))
sketch5.addConstraint(Sketcher.Constraint("Coincident", 2, 2, 3, 1))
sketch5.addConstraint(Sketcher.Constraint("Coincident", 3, 2, 0, 1))
sketch5.addConstraint(Sketcher.Constraint("Vertical", 0))
sketch5.addConstraint(Sketcher.Constraint("Horizontal", 1))
sketch5.addConstraint(Sketcher.Constraint("Vertical", 2))
sketch5.addConstraint(Sketcher.Constraint("Horizontal", 3))
sketch5.addConstraint(Sketcher.Constraint("DistanceX", 1, 1, 1, 2, 50.0))
sketch5.addConstraint(Sketcher.Constraint("DistanceY", 0, 2, 0, 1, 7.0))
sketch5.addConstraint(Sketcher.Constraint("DistanceY", 0, 2, -1, 1, 6.5))
sketch5.addConstraint(Sketcher.Constraint("DistanceX", -1, 1, 0, 2, 322.273266))
pocket2 = doc.addObject("PartDesign::Pocket", "Pocket001")
body.addObject(pocket2)
pocket2.Profile = sketch5
pocket2.Length = 25

# Sketch on an angled plane
sketch6 = doc.addObject("Sketcher::SketchObject", "Sketch005")
body.addObject(sketch6)
sketch6.Placement = App.Placement(App.Vector(230.319376, 0, 132.975172), App.Rotation(App.Vector(-0.500000615, 0, 0.866025048), App.Vector(0, 0.999999999, 0), App.Vector(-0.866025048, 0, -0.500000615), "ZXY"))
sketch6.addGeometry(Part.LineSegment(App.Vector(-138.236675, 0.5, 0), App.Vector(-138.236675, -6.5, 0)), False)
sketch6.addGeometry(Part.LineSegment(App.Vector(-138.236675, -6.5, 0), App.Vector(-88.236675, -6.5, 0)), False)
sketch6.addGeometry(Part.LineSegment(App.Vector(-88.236675, -6.5, 0), App.Vector(-88.236675, 0.5, 0)), False)
sketch6.addGeometry(Part.LineSegment(App.Vector(-88.236675, 0.5, 0), App.Vector(-138.236675, 0.5, 0)), False)
sketch6.addConstraint(Sketcher.Constraint("Coincident", 0, 2, 1, 1))
sketch6.addConstraint(Sketcher.Constraint("Coincident", 1, 2, 2, 1))
sketch6.addConstraint(Sketcher.Constraint("Coincident", 2, 2, 3, 1))
sketch6.addConstraint(Sketcher.Constraint("Coincident", 3, 2, 0, 1))
sketch6.addConstraint(Sketcher.Constraint("Vertical", 0))
sketch6.addConstraint(Sketcher.Constraint("Horizontal", 1))
sketch6.addConstraint(Sketcher.Constraint("Vertical", 2))
sketch6.addConstraint(Sketcher.Constraint("Horizontal", 3))
sketch6.addConstraint(Sketcher.Constraint("DistanceX", 1, 1, 1, 2, 50.0))
sketch6.addConstraint(Sketcher.Constraint("DistanceY", 0, 2, 0, 1, 7.0))
sketch6.addConstraint(Sketcher.Constraint("DistanceY", 0, 2, -1, 1, 6.5))
sketch6.addConstraint(Sketcher.Constraint("DistanceX", 0, 2, -1, 1, 138.236675))
pocket3 = doc.addObject("PartDesign::Pocket", "Pocket002")
body.addObject(pocket3)
pocket3.Profile = sketch6
pocket3.Length = 25

doc.recompute()
